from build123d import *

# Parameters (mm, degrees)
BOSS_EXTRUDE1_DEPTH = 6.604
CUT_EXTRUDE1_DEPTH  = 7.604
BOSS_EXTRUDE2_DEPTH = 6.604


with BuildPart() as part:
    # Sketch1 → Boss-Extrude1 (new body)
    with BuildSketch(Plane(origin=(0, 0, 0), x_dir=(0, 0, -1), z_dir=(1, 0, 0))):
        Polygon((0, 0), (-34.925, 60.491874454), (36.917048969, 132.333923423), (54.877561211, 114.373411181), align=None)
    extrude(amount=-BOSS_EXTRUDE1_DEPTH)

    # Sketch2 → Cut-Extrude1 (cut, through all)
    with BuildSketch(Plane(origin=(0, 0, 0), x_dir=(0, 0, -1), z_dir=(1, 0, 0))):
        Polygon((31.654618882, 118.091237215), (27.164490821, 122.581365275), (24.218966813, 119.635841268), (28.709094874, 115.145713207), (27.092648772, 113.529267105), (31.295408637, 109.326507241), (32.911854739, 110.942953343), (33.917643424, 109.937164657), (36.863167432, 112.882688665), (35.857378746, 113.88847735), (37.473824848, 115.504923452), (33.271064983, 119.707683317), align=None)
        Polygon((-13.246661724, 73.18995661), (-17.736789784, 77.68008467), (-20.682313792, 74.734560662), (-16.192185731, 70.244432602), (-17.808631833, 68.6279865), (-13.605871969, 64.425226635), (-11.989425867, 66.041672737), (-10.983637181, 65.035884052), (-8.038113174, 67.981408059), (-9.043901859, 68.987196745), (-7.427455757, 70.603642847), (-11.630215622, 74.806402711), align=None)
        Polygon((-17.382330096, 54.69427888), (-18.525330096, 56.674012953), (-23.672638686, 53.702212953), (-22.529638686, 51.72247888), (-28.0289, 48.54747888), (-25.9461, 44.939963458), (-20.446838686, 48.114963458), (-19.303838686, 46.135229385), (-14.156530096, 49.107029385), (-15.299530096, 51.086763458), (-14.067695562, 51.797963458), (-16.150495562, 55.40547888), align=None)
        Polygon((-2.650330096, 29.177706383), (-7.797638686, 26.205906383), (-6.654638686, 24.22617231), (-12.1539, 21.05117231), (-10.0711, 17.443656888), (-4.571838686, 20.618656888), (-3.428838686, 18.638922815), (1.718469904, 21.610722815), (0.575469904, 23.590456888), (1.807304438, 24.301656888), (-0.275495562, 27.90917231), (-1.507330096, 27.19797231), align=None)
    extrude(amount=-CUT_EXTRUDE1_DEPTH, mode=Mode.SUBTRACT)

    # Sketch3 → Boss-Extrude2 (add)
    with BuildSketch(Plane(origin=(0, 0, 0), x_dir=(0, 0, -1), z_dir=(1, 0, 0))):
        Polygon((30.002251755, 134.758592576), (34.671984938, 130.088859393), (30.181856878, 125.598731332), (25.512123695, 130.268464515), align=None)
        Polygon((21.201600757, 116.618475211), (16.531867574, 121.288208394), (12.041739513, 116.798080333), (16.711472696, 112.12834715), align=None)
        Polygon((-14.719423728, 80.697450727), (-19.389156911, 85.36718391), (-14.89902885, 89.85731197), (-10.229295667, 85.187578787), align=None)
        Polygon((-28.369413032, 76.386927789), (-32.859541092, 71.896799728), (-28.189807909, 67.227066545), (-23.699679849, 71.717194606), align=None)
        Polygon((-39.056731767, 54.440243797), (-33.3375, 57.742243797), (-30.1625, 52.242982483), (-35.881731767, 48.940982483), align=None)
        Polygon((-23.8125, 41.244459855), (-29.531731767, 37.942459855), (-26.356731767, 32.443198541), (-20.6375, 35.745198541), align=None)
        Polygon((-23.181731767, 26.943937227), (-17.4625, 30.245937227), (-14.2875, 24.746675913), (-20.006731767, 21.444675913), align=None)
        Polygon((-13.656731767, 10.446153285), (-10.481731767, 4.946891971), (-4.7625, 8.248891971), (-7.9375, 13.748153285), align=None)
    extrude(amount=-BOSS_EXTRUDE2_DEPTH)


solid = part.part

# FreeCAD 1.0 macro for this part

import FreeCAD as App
import Part
import Sketcher
Q = App.Units.Quantity


def add_polygon(sketch, points):
    """Adds a closed chain of lines whose ends are joined by coincident constraints."""
    first, n = sketch.GeometryCount, len(points)
    for a, b in zip(points, points[1:] + points[:1]):
        sketch.addGeometry(Part.LineSegment(App.Vector(*a, 0), App.Vector(*b, 0)), False)
    for i in range(n):
        sketch.addConstraint(Sketcher.Constraint("Coincident", first + i, 2, first + (i + 1) % n, 1))

doc = App.newDocument("Part")
body = doc.addObject("PartDesign::Body", "Body")

# Sketch on YZ plane
sketch1 = body.newObject("Sketcher::SketchObject", "Sketch")
sketch1.AttachmentSupport = (doc.getObject("YZ_Plane"), [""])
sketch1.MapMode = "FlatFace"
add_polygon(sketch1, [(60, 35), (0, 0), (114, -55), (132, -37)])  # lines 0-3
sketch1.addConstraint([
    Sketcher.Constraint("Coincident", 0, 2, -1, 1),
    Sketcher.Constraint("Perpendicular", 2, 3),
    Sketcher.Constraint("Distance", 2, Q("1 in")),
    Sketcher.Constraint("Distance", 3, Q("4 in")),
    Sketcher.Constraint("Angle", 0, Q("-150 deg")),
    Sketcher.Constraint("Angle", 2, Q("45 deg")),
    Sketcher.Constraint("Distance", 0, Q("2.75 in")),
])
pad1 = body.newObject("PartDesign::Pad", "Pad")
pad1.Profile = sketch1
pad1.Length = Q("0.26 in")
pad1.Reversed = True

# Sketch on YZ plane
sketch2 = body.newObject("Sketcher::SketchObject", "Sketch001")
sketch2.AttachmentSupport = (doc.getObject("YZ_Plane"), [""])
sketch2.MapMode = "FlatFace"
add_polygon(sketch2, [(118.1, -31.7), (122.6, -27.2), (119.6, -24.2), (115.1, -28.7), (113.5, -27.1), (109.3, -31.3), (110.9, -32.9), (109.9, -33.9), (112.9, -36.9), (113.9, -35.9), (115.5, -37.5), (119.7, -33.3)])  # lines 0-11
add_polygon(sketch2, [(73.2, 13.2), (77.7, 17.7), (74.7, 20.7), (70.2, 16.2), (68.6, 17.8), (64.4, 13.6), (66, 12), (65, 11), (68, 8), (69, 9), (70.6, 7.4), (74.8, 11.6)])  # lines 12-23
add_polygon(sketch2, [(54.7, 17.4), (56.7, 18.5), (53.7, 23.7), (51.7, 22.5), (48.5, 28), (44.9, 25.9), (48.1, 20.4), (46.1, 19.3), (49.1, 14.2), (51.1, 15.3), (51.8, 14.1), (55.4, 16.2)])  # lines 24-35
add_polygon(sketch2, [(29.2, 2.7), (26.2, 7.8), (24.2, 6.7), (21.1, 12.2), (17.4, 10.1), (20.6, 4.6), (18.6, 3.4), (21.6, -1.7), (23.6, -0.6), (24.3, -1.8), (27.9, 0.3), (27.2, 1.5)])  # lines 36-47
sketch2.addConstraint([
    Sketcher.Constraint("Perpendicular", 0, 1),
    Sketcher.Constraint("Perpendicular", 1, 2),
    Sketcher.Constraint("Perpendicular", 2, 3),
    Sketcher.Constraint("Perpendicular", 3, 4),
    Sketcher.Constraint("Perpendicular", 4, 5),
    Sketcher.Constraint("Perpendicular", 5, 6),
    Sketcher.Constraint("Perpendicular", 6, 7),
    Sketcher.Constraint("Perpendicular", 7, 8),
    Sketcher.Constraint("Perpendicular", 8, 9),
    Sketcher.Constraint("Perpendicular", 9, 10),
    Sketcher.Constraint("Perpendicular", 10, 11),
    Sketcher.Constraint("Perpendicular", 11, 12),
    Sketcher.Constraint("Perpendicular", 12, 13),
    Sketcher.Constraint("Perpendicular", 13, 14),
    Sketcher.Constraint("Perpendicular", 14, 15),
    Sketcher.Constraint("Perpendicular", 15, 16),
    Sketcher.Constraint("Perpendicular", 16, 17),
    Sketcher.Constraint("Perpendicular", 17, 18),
    Sketcher.Constraint("Perpendicular", 18, 19),
    Sketcher.Constraint("Perpendicular", 19, 20),
    Sketcher.Constraint("Perpendicular", 20, 21),
    Sketcher.Constraint("Perpendicular", 21, 22),
    Sketcher.Constraint("Perpendicular", 22, 23),
    Sketcher.Constraint("Perpendicular", 24, 25),
    Sketcher.Constraint("Perpendicular", 25, 26),
    Sketcher.Constraint("Perpendicular", 26, 27),
    Sketcher.Constraint("Perpendicular", 27, 28),
    Sketcher.Constraint("Perpendicular", 28, 29),
    Sketcher.Constraint("Perpendicular", 29, 30),
    Sketcher.Constraint("Perpendicular", 30, 31),
    Sketcher.Constraint("Perpendicular", 31, 32),
    Sketcher.Constraint("Perpendicular", 32, 33),
    Sketcher.Constraint("Perpendicular", 33, 34),
    Sketcher.Constraint("Perpendicular", 34, 35),
    Sketcher.Constraint("Parallel", 35, 36),
    Sketcher.Constraint("Perpendicular", 36, 37),
    Sketcher.Constraint("Perpendicular", 37, 38),
    Sketcher.Constraint("Perpendicular", 38, 39),
    Sketcher.Constraint("Perpendicular", 39, 40),
    Sketcher.Constraint("Perpendicular", 40, 41),
    Sketcher.Constraint("Perpendicular", 41, 42),
    Sketcher.Constraint("Perpendicular", 42, 43),
    Sketcher.Constraint("Perpendicular", 43, 44),
    Sketcher.Constraint("Perpendicular", 44, 45),
    Sketcher.Constraint("Perpendicular", 45, 46),
    Sketcher.Constraint("Perpendicular", 46, 47),
    Sketcher.Constraint("Equal", 0, 2),
    Sketcher.Constraint("Equal", 3, 5),
    Sketcher.Constraint("Equal", 1, 7),
    Sketcher.Constraint("Equal", 6, 8),
    Sketcher.Constraint("Equal", 5, 9),
    Sketcher.Constraint("Equal", 2, 12),
    Sketcher.Constraint("Equal", 7, 13),
    Sketcher.Constraint("Equal", 12, 14),
    Sketcher.Constraint("Equal", 11, 15),
    Sketcher.Constraint("Equal", 10, 16),
    Sketcher.Constraint("Equal", 15, 17),
    Sketcher.Constraint("Equal", 8, 18),
    Sketcher.Constraint("Equal", 13, 19),
    Sketcher.Constraint("Equal", 18, 20),
    Sketcher.Constraint("Equal", 17, 21),
    Sketcher.Constraint("Equal", 23, 24),
    Sketcher.Constraint("Equal", 22, 25),
    Sketcher.Constraint("Equal", 24, 26),
    Sketcher.Constraint("Equal", 14, 27),
    Sketcher.Constraint("Equal", 19, 28),
    Sketcher.Constraint("Equal", 27, 29),
    Sketcher.Constraint("Equal", 26, 30),
    Sketcher.Constraint("Equal", 25, 31),
    Sketcher.Constraint("Equal", 30, 32),
    Sketcher.Constraint("Equal", 20, 33),
    Sketcher.Constraint("Equal", 31, 36),
    Sketcher.Constraint("Equal", 32, 37),
    Sketcher.Constraint("Equal", 29, 38),
    Sketcher.Constraint("Equal", 34, 39),
    Sketcher.Constraint("Equal", 38, 40),
    Sketcher.Constraint("Equal", 37, 41),
    Sketcher.Constraint("Equal", 36, 42),
    Sketcher.Constraint("Equal", 41, 43),
    Sketcher.Constraint("Equal", 35, 44),
    Sketcher.Constraint("Equal", 39, 45),
    Sketcher.Constraint("Angle", 0, Q("45 deg")),
    Sketcher.Constraint("Angle", 24, Q("30 deg")),
    Sketcher.Constraint("Distance", 0, Q("0.25 in")),
    Sketcher.Constraint("Distance", 3, Q("0.09 in")),
    Sketcher.Constraint("DistanceY", 40, 2, 30, 2, Q("0.58 in")),
    Sketcher.Constraint("Distance", 1, Q("0.164 in")),
    Sketcher.Constraint("Distance", 4, Q("0.234 in")),
    Sketcher.Constraint("Distance", 6, Q("0.056 in")),
    Sketcher.Constraint("DistanceY", -1, 1, 27, 2, Q("1.1035 in")),
    Sketcher.Constraint("DistanceY", -1, 1, 20, 2, 9.043902),
    Sketcher.Constraint("DistanceY", 4, 2, 12, 2, 49.032198),
    Sketcher.Constraint("DistanceX", -1, 1, 1, 2, 119.635841),
    Sketcher.Constraint("DistanceX", -1, 1, 13, 2, 74.734561),
    Sketcher.Constraint("DistanceX", -1, 1, 26, 2, 51.722479),
    Sketcher.Constraint("DistanceX", 37, 2, 29, 2, 23.888791),
])
pocket1 = body.newObject("PartDesign::Pocket", "Pocket")
pocket1.Profile = sketch2
pocket1.Type = "ThroughAll"

# Sketch on YZ plane
sketch3 = body.newObject("Sketcher::SketchObject", "Sketch002")
sketch3.AttachmentSupport = (doc.getObject("YZ_Plane"), [""])
sketch3.MapMode = "FlatFace"
add_polygon(sketch3, [(130, -35), (135, -30), (130, -26), (126, -30)])  # lines 0-3
add_polygon(sketch3, [(117, -21), (121, -17), (117, -12), (112, -17)])  # lines 4-7
add_polygon(sketch3, [(85, 19), (81, 15), (85, 10), (90, 15)])  # lines 8-11
add_polygon(sketch3, [(76, 28), (72, 33), (67, 28), (72, 24)])  # lines 12-15
add_polygon(sketch3, [(58, 33), (54, 39), (49, 36), (52, 30)])  # lines 16-19
add_polygon(sketch3, [(41, 24), (38, 30), (32, 26), (36, 21)])  # lines 20-23
add_polygon(sketch3, [(30, 17), (27, 23), (21, 20), (25, 14)])  # lines 24-27
add_polygon(sketch3, [(10, 14), (5, 10), (8, 5), (14, 8)])  # lines 28-31
sketch3.addConstraint([
    Sketcher.Constraint("Perpendicular", 0, 1),
    Sketcher.Constraint("Perpendicular", 1, 2),
    Sketcher.Constraint("Perpendicular", 2, 3),
    Sketcher.Constraint("Perpendicular", 3, 4),
    Sketcher.Constraint("Perpendicular", 4, 5),
    Sketcher.Constraint("Perpendicular", 5, 6),
    Sketcher.Constraint("Perpendicular", 6, 7),
    Sketcher.Constraint("Perpendicular", 7, 8),
    Sketcher.Constraint("Perpendicular", 8, 9),
    Sketcher.Constraint("Perpendicular", 9, 10),
    Sketcher.Constraint("Perpendicular", 10, 11),
    Sketcher.Constraint("Parallel", 11, 12),
    Sketcher.Constraint("Perpendicular", 12, 13),
    Sketcher.Constraint("Perpendicular", 13, 14),
    Sketcher.Constraint("Perpendicular", 14, 15),
    Sketcher.Constraint("Perpendicular", 16, 17),
    Sketcher.Constraint("Perpendicular", 17, 18),
    Sketcher.Constraint("Perpendicular", 18, 19),
    Sketcher.Constraint("Perpendicular", 19, 20),
    Sketcher.Constraint("Perpendicular", 20, 21),
    Sketcher.Constraint("Perpendicular", 21, 22),
    Sketcher.Constraint("Perpendicular", 22, 23),
    Sketcher.Constraint("Perpendicular", 23, 24),
    Sketcher.Constraint("Perpendicular", 24, 25),
    Sketcher.Constraint("Perpendicular", 25, 26),
    Sketcher.Constraint("Perpendicular", 26, 27),
    Sketcher.Constraint("Parallel", 27, 28),
    Sketcher.Constraint("Perpendicular", 28, 29),
    Sketcher.Constraint("Perpendicular", 29, 30),
    Sketcher.Constraint("Perpendicular", 30, 31),
    Sketcher.Constraint("Equal", 2, 4),
    Sketcher.Constraint("Equal", 3, 5),
    Sketcher.Constraint("Equal", 6, 8),
    Sketcher.Constraint("Equal", 7, 9),
    Sketcher.Constraint("Equal", 11, 12),
    Sketcher.Constraint("Equal", 10, 13),
    Sketcher.Constraint("Equal", 15, 16),
    Sketcher.Constraint("Equal", 14, 17),
    Sketcher.Constraint("Equal", 18, 20),
    Sketcher.Constraint("Equal", 19, 21),
    Sketcher.Constraint("Equal", 22, 24),
    Sketcher.Constraint("Equal", 23, 25),
    Sketcher.Constraint("Equal", 27, 28),
    Sketcher.Constraint("Equal", 26, 29),
    Sketcher.Constraint("Angle", 0, Q("45 deg")),
    Sketcher.Constraint("Angle", 16, Q("120 deg")),
    Sketcher.Constraint("DistanceY", 21, 2, 16, 2, Q("0.5 in")),
    Sketcher.Constraint("DistanceY", 24, 2, 17, 2, Q("0.5 in")),
    Sketcher.Constraint("DistanceY", 28, 2, 24, 2, Q("0.5 in")),
    Sketcher.Constraint("Distance", 0, Q("0.26 in")),
    Sketcher.Constraint("Distance", 1, Q("0.25 in")),
    Sketcher.Constraint("DistanceY", -1, 1, 18, 2, Q("1.1875 in")),
    Sketcher.Constraint("DistanceY", 7, 2, -1, 1, 21.201601),
    Sketcher.Constraint("DistanceX", -1, 1, 12, 2, 71.8968),
    Sketcher.Constraint("DistanceX", -1, 1, 21, 2, 32.443199),
    Sketcher.Constraint("DistanceX", 9, 2, 5, 2, 31.610502),
    Sketcher.Constraint("DistanceY", 6, 2, 10, 2, 31.610502),
    Sketcher.Constraint("DistanceY", 0, 2, -1, 1, 30.002252),
    Sketcher.Constraint("DistanceX", -1, 1, 2, 2, 125.598731),
    Sketcher.Constraint("DistanceX", -1, 1, 4, 2, 121.288208),
    Sketcher.Constraint("DistanceY", -1, 1, 12, 2, 32.859541),
    Sketcher.Constraint("DistanceX", -1, 1, 28, 2, 4.946892),
    Sketcher.Constraint("DistanceX", 16, 2, 14, 2, 17.276951),
    Sketcher.Constraint("DistanceX", 24, 2, 21, 2, 5.499261),
])
pad2 = body.newObject("PartDesign::Pad", "Pad001")
pad2.Profile = sketch3
pad2.Length = Q("0.26 in")
pad2.Reversed = True

doc.recompute()
